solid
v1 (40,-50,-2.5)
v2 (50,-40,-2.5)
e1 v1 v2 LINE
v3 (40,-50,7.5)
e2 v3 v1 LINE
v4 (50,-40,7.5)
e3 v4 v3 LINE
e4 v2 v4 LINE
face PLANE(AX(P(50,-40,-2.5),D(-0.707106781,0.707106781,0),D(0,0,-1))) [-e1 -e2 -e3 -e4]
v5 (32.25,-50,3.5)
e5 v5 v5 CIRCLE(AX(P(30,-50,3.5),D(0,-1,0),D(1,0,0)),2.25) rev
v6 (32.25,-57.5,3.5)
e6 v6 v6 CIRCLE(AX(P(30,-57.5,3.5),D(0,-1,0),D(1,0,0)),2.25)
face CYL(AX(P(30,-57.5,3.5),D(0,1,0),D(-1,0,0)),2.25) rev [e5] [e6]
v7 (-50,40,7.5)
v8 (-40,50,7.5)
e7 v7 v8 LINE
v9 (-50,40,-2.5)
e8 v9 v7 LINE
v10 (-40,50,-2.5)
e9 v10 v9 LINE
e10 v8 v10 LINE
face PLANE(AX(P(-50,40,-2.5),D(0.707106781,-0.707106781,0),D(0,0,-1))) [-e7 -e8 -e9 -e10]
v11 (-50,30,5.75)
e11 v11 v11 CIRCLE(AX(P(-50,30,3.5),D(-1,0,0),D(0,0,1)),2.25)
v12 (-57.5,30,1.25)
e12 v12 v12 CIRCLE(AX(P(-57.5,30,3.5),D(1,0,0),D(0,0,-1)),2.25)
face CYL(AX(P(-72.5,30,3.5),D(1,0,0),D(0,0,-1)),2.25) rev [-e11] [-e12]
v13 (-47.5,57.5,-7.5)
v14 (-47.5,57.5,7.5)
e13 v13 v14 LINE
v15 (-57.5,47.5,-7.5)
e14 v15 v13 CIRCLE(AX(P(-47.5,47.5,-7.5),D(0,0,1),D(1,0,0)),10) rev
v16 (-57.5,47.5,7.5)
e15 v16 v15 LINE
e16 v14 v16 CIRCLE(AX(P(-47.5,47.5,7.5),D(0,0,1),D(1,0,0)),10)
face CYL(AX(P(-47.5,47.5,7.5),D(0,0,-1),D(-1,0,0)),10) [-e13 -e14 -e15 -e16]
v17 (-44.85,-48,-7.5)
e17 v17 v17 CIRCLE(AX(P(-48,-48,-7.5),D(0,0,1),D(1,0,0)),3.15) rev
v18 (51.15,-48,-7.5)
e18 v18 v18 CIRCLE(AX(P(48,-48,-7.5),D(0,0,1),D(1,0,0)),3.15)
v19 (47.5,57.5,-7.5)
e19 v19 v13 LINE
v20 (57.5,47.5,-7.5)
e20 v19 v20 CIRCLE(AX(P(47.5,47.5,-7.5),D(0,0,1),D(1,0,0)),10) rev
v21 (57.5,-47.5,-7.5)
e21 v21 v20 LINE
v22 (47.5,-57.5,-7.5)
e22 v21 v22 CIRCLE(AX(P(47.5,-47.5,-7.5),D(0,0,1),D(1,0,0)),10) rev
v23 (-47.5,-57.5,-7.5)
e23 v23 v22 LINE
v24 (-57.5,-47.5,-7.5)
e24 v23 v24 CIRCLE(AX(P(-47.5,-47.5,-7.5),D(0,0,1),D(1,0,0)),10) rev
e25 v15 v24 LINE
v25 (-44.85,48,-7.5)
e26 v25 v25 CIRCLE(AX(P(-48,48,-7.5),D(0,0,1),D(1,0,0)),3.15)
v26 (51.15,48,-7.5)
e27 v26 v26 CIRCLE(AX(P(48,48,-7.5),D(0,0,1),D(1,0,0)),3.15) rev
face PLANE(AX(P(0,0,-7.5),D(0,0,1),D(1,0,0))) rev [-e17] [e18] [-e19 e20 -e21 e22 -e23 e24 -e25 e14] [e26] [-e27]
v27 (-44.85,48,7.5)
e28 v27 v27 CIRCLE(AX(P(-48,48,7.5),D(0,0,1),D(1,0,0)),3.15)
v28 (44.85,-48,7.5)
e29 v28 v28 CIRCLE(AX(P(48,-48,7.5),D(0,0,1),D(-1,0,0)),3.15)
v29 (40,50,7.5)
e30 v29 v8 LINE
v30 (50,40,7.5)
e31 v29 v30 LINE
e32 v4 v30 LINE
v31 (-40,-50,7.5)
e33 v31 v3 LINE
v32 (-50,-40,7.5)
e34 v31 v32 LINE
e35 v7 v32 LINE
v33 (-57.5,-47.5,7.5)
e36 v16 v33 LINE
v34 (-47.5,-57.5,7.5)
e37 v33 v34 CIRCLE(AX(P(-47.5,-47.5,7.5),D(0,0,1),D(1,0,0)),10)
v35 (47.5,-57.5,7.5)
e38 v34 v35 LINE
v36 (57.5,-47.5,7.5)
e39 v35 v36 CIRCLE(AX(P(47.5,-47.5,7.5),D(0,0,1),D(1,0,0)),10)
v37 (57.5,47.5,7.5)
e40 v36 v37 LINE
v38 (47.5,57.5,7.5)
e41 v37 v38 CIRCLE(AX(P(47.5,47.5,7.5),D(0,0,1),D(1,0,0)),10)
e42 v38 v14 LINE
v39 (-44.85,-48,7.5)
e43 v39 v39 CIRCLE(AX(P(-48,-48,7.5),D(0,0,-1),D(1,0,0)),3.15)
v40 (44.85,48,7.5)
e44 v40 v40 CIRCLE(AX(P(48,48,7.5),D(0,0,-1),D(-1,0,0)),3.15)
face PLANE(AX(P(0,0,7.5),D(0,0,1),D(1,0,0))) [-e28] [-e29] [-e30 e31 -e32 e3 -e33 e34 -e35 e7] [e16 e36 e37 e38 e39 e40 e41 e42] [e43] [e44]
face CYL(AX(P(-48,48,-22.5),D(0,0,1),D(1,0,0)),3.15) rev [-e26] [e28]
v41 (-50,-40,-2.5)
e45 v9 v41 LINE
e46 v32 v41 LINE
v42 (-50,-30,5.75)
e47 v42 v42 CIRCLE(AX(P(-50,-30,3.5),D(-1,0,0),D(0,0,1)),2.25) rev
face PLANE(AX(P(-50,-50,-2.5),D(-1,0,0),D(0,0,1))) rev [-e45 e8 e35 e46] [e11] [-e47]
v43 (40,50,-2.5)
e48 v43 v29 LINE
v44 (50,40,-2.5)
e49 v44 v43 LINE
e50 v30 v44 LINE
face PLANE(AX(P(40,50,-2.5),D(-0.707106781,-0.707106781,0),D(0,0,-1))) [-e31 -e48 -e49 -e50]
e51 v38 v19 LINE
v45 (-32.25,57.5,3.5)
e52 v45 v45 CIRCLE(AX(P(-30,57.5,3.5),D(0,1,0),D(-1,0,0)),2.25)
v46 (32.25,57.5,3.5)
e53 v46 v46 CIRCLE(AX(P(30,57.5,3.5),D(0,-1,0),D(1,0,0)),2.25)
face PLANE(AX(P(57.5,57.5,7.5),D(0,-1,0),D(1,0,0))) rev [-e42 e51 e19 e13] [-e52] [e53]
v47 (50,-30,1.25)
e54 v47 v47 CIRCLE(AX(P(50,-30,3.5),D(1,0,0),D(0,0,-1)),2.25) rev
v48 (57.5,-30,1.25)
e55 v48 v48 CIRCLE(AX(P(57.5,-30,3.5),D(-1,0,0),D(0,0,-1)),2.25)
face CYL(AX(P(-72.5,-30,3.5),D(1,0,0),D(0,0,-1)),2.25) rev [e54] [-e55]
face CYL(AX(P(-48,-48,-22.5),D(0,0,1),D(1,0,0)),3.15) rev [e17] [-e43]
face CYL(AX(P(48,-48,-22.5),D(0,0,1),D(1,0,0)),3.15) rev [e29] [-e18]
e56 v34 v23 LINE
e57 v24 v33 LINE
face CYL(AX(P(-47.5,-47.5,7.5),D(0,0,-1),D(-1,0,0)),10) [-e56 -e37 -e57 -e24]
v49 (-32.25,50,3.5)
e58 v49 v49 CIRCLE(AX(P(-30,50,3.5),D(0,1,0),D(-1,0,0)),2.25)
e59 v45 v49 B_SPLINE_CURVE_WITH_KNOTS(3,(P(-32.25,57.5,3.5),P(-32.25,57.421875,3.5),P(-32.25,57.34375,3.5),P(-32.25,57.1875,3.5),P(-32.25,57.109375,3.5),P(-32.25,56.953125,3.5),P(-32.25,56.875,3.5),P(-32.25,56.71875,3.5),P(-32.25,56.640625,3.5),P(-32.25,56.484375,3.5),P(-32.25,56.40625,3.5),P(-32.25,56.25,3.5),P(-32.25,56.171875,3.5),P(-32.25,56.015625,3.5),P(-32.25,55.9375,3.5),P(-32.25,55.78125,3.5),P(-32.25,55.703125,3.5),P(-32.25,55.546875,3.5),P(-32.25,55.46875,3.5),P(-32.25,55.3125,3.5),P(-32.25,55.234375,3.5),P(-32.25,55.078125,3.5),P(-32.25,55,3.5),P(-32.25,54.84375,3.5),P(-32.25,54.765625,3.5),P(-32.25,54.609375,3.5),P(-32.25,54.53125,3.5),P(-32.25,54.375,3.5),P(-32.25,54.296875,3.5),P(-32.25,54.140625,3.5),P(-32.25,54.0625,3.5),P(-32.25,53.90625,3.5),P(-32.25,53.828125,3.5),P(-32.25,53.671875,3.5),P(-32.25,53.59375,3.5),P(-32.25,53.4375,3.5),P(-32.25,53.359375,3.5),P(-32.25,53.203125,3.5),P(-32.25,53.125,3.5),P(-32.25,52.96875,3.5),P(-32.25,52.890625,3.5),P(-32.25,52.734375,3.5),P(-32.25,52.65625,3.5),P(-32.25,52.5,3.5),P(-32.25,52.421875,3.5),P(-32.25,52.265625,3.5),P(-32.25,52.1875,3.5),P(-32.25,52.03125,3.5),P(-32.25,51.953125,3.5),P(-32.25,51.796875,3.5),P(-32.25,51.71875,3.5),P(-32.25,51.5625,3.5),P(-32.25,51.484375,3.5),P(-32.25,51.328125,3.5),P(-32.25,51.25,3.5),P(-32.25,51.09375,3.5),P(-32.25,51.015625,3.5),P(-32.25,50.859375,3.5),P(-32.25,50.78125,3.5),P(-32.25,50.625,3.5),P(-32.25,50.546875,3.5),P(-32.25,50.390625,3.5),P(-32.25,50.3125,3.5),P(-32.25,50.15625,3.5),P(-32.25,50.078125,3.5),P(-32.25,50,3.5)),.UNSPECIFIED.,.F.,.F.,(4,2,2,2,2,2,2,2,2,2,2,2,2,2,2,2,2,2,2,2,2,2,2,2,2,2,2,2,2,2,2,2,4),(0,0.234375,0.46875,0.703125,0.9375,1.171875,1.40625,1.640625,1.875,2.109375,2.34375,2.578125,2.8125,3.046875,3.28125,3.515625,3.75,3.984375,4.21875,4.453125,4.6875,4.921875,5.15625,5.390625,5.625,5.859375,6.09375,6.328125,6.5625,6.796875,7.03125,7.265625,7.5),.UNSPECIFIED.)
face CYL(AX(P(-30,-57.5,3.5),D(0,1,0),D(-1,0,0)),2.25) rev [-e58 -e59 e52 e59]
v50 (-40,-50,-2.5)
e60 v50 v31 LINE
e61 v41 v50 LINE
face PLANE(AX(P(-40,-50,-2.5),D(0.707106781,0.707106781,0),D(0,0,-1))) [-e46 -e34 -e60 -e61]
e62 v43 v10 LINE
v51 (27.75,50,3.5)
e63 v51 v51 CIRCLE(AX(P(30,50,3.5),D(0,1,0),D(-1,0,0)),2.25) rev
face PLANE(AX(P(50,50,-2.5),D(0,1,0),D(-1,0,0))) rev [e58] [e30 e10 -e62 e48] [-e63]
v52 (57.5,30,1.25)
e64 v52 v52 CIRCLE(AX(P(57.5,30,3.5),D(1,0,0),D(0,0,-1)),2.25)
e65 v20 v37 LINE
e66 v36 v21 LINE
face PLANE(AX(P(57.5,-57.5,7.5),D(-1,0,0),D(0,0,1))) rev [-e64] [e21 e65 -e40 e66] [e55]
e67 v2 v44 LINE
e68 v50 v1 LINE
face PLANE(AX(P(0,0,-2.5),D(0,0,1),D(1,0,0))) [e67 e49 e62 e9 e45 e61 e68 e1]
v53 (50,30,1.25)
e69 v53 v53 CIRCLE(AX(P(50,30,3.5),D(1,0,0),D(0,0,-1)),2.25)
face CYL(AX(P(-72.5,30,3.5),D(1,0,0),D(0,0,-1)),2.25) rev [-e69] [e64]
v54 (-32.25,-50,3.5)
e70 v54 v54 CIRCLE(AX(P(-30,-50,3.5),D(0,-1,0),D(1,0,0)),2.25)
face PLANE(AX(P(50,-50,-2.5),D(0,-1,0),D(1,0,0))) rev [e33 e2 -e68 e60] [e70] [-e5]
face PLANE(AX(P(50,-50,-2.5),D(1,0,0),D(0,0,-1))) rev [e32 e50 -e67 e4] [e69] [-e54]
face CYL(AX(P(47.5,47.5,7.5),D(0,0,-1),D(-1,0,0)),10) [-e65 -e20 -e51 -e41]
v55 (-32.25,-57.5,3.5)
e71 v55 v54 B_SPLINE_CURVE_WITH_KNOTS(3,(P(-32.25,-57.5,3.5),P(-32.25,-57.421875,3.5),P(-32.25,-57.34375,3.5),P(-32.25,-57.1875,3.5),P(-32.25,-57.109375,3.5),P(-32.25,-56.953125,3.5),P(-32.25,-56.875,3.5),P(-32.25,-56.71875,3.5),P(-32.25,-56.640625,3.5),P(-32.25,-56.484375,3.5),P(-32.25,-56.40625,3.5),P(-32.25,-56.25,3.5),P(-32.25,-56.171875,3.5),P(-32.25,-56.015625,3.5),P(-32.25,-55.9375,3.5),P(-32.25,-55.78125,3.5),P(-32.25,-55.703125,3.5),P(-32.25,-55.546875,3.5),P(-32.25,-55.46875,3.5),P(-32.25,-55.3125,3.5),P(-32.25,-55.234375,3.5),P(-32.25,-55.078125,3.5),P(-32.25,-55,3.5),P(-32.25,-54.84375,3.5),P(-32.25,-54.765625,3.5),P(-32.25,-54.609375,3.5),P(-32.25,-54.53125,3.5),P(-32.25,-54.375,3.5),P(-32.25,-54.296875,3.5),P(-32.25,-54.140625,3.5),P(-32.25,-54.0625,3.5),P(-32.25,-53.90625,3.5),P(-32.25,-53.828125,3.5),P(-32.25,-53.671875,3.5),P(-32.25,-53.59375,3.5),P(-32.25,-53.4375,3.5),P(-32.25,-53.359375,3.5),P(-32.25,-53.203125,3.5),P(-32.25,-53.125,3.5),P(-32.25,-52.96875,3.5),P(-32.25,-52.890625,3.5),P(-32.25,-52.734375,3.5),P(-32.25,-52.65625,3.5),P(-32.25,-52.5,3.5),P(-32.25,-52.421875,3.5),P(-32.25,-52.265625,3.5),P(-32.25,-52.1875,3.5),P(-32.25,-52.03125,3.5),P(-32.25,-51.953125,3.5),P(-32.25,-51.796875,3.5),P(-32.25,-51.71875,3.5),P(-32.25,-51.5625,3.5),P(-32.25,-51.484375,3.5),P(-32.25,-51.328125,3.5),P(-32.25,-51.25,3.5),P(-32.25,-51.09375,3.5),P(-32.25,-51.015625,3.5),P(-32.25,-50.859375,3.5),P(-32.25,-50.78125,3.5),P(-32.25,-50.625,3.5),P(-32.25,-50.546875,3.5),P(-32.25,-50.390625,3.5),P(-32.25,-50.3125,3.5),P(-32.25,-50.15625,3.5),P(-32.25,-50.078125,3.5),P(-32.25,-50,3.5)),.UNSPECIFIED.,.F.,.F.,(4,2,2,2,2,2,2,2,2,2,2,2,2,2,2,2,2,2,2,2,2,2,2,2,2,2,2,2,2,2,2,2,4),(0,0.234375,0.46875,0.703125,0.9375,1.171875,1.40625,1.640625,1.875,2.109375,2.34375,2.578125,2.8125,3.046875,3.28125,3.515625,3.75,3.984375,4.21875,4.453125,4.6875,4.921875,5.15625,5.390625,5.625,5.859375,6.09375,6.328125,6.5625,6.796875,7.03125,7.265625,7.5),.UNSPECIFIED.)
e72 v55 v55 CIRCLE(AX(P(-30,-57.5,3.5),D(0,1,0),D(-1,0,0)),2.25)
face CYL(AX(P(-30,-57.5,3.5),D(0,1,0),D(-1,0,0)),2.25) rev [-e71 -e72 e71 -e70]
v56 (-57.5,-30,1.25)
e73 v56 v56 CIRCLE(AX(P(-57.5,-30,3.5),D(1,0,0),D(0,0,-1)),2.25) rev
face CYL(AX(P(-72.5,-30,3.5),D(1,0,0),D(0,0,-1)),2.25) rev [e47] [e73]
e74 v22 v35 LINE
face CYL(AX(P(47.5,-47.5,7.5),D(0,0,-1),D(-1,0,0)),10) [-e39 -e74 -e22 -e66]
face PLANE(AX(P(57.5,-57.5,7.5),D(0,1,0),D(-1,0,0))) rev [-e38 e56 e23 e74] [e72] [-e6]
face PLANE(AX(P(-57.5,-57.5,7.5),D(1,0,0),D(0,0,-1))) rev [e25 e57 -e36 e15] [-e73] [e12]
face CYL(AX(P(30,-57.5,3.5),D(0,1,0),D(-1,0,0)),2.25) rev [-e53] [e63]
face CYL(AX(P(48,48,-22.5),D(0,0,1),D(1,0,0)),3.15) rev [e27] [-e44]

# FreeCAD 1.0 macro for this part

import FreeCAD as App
import Part
import Sketcher
from FreeCAD import Vector
Q = App.Units.Quantity


def edges_at(feature, points):
    """Names of the edges that pass closest to the given points."""
    edges = feature.Shape.Edges
    near = lambda p: min(range(len(edges)), key=lambda i: edges[i].distToShape(Part.Vertex(*p))[0])
    return sorted({f"Edge{near(p) + 1}" for p in points})


def add_polygon(sketch, points):
    """Adds a closed chain of lines whose ends are joined by coincident constraints."""
    first, n = sketch.GeometryCount, len(points)
    for a, b in zip(points, points[1:] + points[:1]):
        sketch.addGeometry(Part.LineSegment(App.Vector(*a, 0), App.Vector(*b, 0)), False)
    for i in range(n):
        sketch.addConstraint(Sketcher.Constraint("Coincident", first + i, 2, first + (i + 1) % n, 1))

doc = App.newDocument("Part")
body = doc.addObject("PartDesign::Body", "Body")

# Sketch on XY plane
sketch1 = doc.addObject("Sketcher::SketchObject", "Sketch")
body.addObject(sketch1)
sketch1.AttachmentSupport = (doc.XY_Plane, [""])
sketch1.MapMode = "FlatFace"
add_polygon(sketch1, [(-57.5, 57.5), (-57.5, -57.5), (57.5, -57.5), (57.5, 57.5)])  # lines 0-3
sketch1.addConstraint([
    Sketcher.Constraint("Vertical", 0),
    Sketcher.Constraint("Horizontal", 1),
    Sketcher.Constraint("Vertical", 2),
    Sketcher.Constraint("Horizontal", 3),
    Sketcher.Constraint("Symmetric", 0, 2, 2, 2, -1, 1),
    Sketcher.Constraint("Equal", 3, 0),
    Sketcher.Constraint("DistanceX", 1, 1, 1, 2, Q("115 mm")),
])
pad1 = doc.addObject("PartDesign::Pad", "Pad")
body.addObject(pad1)
pad1.Profile = sketch1
pad1.Length = 15
pad1.Midplane = True
doc.recompute()

fillet = doc.addObject("PartDesign::Fillet", "Fillet")
body.addObject(fillet)
fillet.Base = (pad1, edges_at(pad1, [
    (-57.5, 57.5, 0),
    (57.5, 57.5, 0),
    (57.5, -57.5, 0),
    (-57.5, -57.5, 0),
]))
fillet.Radius = 10

# Sketch on XY plane
sketch2 = doc.addObject("Sketcher::SketchObject", "Sketch001")
body.addObject(sketch2)
sketch2.AttachmentSupport = (doc.XY_Plane, [""])
sketch2.MapMode = "FlatFace"
sketch2.AttachmentOffset = App.Placement(Vector(0, 0, 7.5), App.Rotation())
add_polygon(sketch2, [(-50, 50), (-50, -50), (50, -50), (50, 50)])  # lines 0-3
sketch2.addConstraint([
    Sketcher.Constraint("Vertical", 0),
    Sketcher.Constraint("Horizontal", 1),
    Sketcher.Constraint("Vertical", 2),
    Sketcher.Constraint("Horizontal", 3),
    Sketcher.Constraint("Symmetric", 0, 2, 2, 2, -1, 1),
    Sketcher.Constraint("Equal", 3, 0),
    Sketcher.Constraint("DistanceX", 1, 1, 1, 2, Q("100 mm")),
])
pocket1 = doc.addObject("PartDesign::Pocket", "Pocket")
body.addObject(pocket1)
pocket1.Profile = sketch2
pocket1.Length = 10
doc.recompute()

chamfer = doc.addObject("PartDesign::Chamfer", "Chamfer")
body.addObject(chamfer)
chamfer.Base = (pocket1, edges_at(pocket1, [
    (-50, -50, 2.5),
    (-50, 50, 2.5),
    (50, 50, 2.5),
    (50, -50, 2.5),
]))
chamfer.Size = 10

# Sketch on XY plane
sketch3 = doc.addObject("Sketcher::SketchObject", "Sketch002")
body.addObject(sketch3)
sketch3.AttachmentSupport = (doc.XY_Plane, [""])
sketch3.MapMode = "FlatFace"
sketch3.AttachmentOffset = App.Placement(Vector(0, 0, 7.5), App.Rotation())
sketch3.addGeometry(Part.Circle(Vector(-48, 48, 0), Vector(0, 0, 1), 3.15), False)
sketch3.addConstraint([
    Sketcher.Constraint("Diameter", 0, Q("6.3 mm")),
    Sketcher.Constraint("DistanceX", 0, 3, -1, 1, Q("48 mm")),
    Sketcher.Constraint("DistanceY", -1, 1, 0, 3, Q("48 mm")),
])
pocket2 = doc.addObject("PartDesign::Pocket", "Pocket001")
body.addObject(pocket2)
pocket2.Profile = sketch3
pocket2.Length = 30
doc.recompute()

mirrored = doc.addObject("PartDesign::Mirrored", "Mirrored")
body.addObject(mirrored)
mirrored.Originals = [pocket2]
mirrored.MirrorPlane = (doc.YZ_Plane, [""])
body.Tip = mirrored
doc.recompute()

mirrored2 = doc.addObject("PartDesign::Mirrored", "Mirrored001")
body.addObject(mirrored2)
mirrored2.Originals = [pocket2]
mirrored2.MirrorPlane = (doc.XZ_Plane, [""])
body.Tip = mirrored2

# Sketch on XY plane
sketch4 = doc.addObject("Sketcher::SketchObject", "Sketch003")
body.addObject(sketch4)
sketch4.AttachmentSupport = (doc.XY_Plane, [""])
sketch4.MapMode = "FlatFace"
sketch4.AttachmentOffset = App.Placement(Vector(0, 0, 7.5), App.Rotation())
sketch4.addGeometry(Part.Circle(Vector(48, -48, 0), Vector(0, 0, 1), 3.15), False)
sketch4.addConstraint([
    Sketcher.Constraint("Diameter", 0, Q("6.3 mm")),
    Sketcher.Constraint("DistanceX", -1, 1, 0, 3, Q("48 mm")),
    Sketcher.Constraint("DistanceY", 0, 3, -1, 1, Q("48 mm")),
])
pocket3 = doc.addObject("PartDesign::Pocket", "Pocket002")
body.addObject(pocket3)
pocket3.Profile = sketch4
pocket3.Length = 30

# Sketch on YZ plane
sketch5 = doc.addObject("Sketcher::SketchObject", "Sketch004")
body.addObject(sketch5)
sketch5.AttachmentSupport = (doc.YZ_Plane, [""])
sketch5.MapMode = "FlatFace"
sketch5.AttachmentOffset = App.Placement(Vector(0, 0, 57.5), App.Rotation())
sketch5.addGeometry(Part.Circle(Vector(30, 3.5, 0), Vector(0, 0, 1), 2.25), False)
sketch5.addConstraint([
    Sketcher.Constraint("Diameter", 0, Q("4.5 mm")),
    Sketcher.Constraint("DistanceX", -1, 1, 0, 3, Q("30 mm")),
    Sketcher.Constraint("DistanceY", -1, 1, 0, 3, Q("3.5 mm")),
])
pocket4 = doc.addObject("PartDesign::Pocket", "Pocket003")
body.addObject(pocket4)
pocket4.Profile = sketch5
pocket4.Length = 130
doc.recompute()

mirrored3 = doc.addObject("PartDesign::Mirrored", "Mirrored002")
body.addObject(mirrored3)
mirrored3.Originals = [pocket4]
mirrored3.MirrorPlane = (doc.XZ_Plane, [""])
body.Tip = mirrored3

# Sketch on XZ plane
sketch6 = doc.addObject("Sketcher::SketchObject", "Sketch005")
body.addObject(sketch6)
sketch6.AttachmentSupport = (doc.XZ_Plane, [""])
sketch6.MapMode = "FlatFace"
sketch6.AttachmentOffset = App.Placement(Vector(0, 0, -57.5), App.Rotation())
sketch6.addGeometry(Part.Circle(Vector(-30, 3.5, 0), Vector(0, 0, 1), 2.25), False)
sketch6.addConstraint([
    Sketcher.Constraint("Diameter", 0, Q("4.5 mm")),
    Sketcher.Constraint("DistanceX", 0, 3, -1, 1, Q("30 mm")),
    Sketcher.Constraint("DistanceY", -1, 1, 0, 3, Q("3.5 mm")),
])
pocket5 = doc.addObject("PartDesign::Pocket", "Pocket004")
body.addObject(pocket5)
pocket5.Profile = sketch6
pocket5.Type = "ThroughAll"
pocket5.Reversed = True
doc.recompute()

mirrored4 = doc.addObject("PartDesign::Mirrored", "Mirrored003")
body.addObject(mirrored4)
mirrored4.Originals = [pocket5]
mirrored4.MirrorPlane = (doc.YZ_Plane, [""])
body.Tip = mirrored4

doc.recompute()
